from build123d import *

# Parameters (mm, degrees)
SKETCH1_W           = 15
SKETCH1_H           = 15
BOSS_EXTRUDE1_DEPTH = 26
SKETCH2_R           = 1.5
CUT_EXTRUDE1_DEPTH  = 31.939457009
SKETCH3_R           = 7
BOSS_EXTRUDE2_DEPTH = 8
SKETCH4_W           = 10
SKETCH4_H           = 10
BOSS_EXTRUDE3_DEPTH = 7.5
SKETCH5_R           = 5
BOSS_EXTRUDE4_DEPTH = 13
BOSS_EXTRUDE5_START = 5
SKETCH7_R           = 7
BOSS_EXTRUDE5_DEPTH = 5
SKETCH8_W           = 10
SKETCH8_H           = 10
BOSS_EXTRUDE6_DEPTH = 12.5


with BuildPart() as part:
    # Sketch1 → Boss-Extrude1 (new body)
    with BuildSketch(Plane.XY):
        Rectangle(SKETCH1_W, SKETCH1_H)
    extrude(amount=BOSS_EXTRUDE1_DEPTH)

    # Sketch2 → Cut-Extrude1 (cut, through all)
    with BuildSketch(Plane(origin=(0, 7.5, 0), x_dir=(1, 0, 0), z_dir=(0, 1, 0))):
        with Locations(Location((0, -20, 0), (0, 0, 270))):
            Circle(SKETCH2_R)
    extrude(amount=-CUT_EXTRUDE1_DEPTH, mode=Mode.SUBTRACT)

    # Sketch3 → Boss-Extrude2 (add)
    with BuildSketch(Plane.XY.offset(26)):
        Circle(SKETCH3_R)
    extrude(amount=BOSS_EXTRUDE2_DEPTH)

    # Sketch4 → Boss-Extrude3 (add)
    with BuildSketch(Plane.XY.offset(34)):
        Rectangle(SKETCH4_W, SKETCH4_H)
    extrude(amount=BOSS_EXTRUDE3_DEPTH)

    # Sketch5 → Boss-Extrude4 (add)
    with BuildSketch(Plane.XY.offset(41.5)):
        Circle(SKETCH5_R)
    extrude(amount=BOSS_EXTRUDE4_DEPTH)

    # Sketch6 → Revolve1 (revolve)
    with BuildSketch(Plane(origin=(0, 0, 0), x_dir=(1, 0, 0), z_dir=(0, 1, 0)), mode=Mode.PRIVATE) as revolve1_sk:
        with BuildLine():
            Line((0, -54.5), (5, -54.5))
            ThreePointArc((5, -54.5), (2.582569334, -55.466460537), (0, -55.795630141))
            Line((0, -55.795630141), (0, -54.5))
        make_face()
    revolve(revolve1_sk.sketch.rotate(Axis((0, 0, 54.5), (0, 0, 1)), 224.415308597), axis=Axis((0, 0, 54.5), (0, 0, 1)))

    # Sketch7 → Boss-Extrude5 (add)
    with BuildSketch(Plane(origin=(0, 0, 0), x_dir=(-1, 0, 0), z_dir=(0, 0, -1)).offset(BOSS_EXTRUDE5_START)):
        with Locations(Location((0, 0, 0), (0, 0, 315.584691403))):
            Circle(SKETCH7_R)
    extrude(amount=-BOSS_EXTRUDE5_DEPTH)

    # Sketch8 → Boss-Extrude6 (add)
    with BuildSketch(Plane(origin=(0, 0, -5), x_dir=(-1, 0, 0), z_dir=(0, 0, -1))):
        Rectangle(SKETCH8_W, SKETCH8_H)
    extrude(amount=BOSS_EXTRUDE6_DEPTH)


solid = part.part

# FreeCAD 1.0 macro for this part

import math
import FreeCAD as App
import Part
import Sketcher
from FreeCAD import Vector
Q = App.Units.Quantity

doc = App.newDocument("Part")
body = doc.addObject("PartDesign::Body", "Body")

# Sketch on XY plane
sketch1 = body.newObject("Sketcher::SketchObject", "Sketch")
sketch1.AttachmentSupport = (doc.getObject("XY_Plane"), [""])
sketch1.MapMode = "FlatFace"
sketch1.addGeometry([
    Part.LineSegment(Vector(-7.5, 7.5, 0), Vector(-7.5, -7.5, 0)),
    Part.LineSegment(Vector(-7.5, -7.5, 0), Vector(7.5, -7.5, 0)),
    Part.LineSegment(Vector(7.5, -7.5, 0), Vector(7.5, 7.5, 0)),
    Part.LineSegment(Vector(7.5, 7.5, 0), Vector(-7.5, 7.5, 0)),
], False)
sketch1.addConstraint([
    Sketcher.Constraint("Coincident", 0, 2, 1, 1),
    Sketcher.Constraint("Coincident", 1, 2, 2, 1),
    Sketcher.Constraint("Coincident", 2, 2, 3, 1),
    Sketcher.Constraint("Coincident", 3, 2, 0, 1),
    Sketcher.Constraint("Vertical", 0),
    Sketcher.Constraint("Horizontal", 1),
    Sketcher.Constraint("Vertical", 2),
    Sketcher.Constraint("Horizontal", 3),
    Sketcher.Constraint("Symmetric", 0, 2, 2, 2, -1, 1),
    Sketcher.Constraint("Equal", 3, 0),
    Sketcher.Constraint("DistanceX", 1, 1, 1, 2, Q("15 mm")),
])
pad1 = body.newObject("PartDesign::Pad", "Pad")
pad1.Profile = sketch1
pad1.Length = 26

# Sketch on XZ plane
sketch2 = body.newObject("Sketcher::SketchObject", "Sketch001")
sketch2.AttachmentSupport = (doc.getObject("XZ_Plane"), [""])
sketch2.MapMode = "FlatFace"
sketch2.AttachmentOffset = App.Placement(Vector(0, 0, -7.5), App.Rotation())
sketch2.addGeometry(Part.Circle(Vector(0, 20, 0), Vector(0, 0, 1), 1.5), False)
sketch2.addConstraint([
    Sketcher.Constraint("PointOnObject", 0, 3, -2),
    Sketcher.Constraint("Diameter", 0, Q("3 mm")),
    Sketcher.Constraint("DistanceY", -1, 1, 0, 3, Q("20 mm")),
])
pocket1 = body.newObject("PartDesign::Pocket", "Pocket")
pocket1.Profile = sketch2
pocket1.Type = "ThroughAll"
pocket1.Reversed = True

# Sketch on XY plane
sketch3 = body.newObject("Sketcher::SketchObject", "Sketch002")
sketch3.AttachmentSupport = (doc.getObject("XY_Plane"), [""])
sketch3.MapMode = "FlatFace"
sketch3.AttachmentOffset = App.Placement(Vector(0, 0, 26), App.Rotation())
sketch3.addGeometry(Part.Circle(Vector(0, 0, 0), Vector(0, 0, 1), 7), False)
sketch3.addConstraint([
    Sketcher.Constraint("Coincident", 0, 3, -1, 1),
    Sketcher.Constraint("Diameter", 0, Q("14 mm")),
])
pad2 = body.newObject("PartDesign::Pad", "Pad001")
pad2.Profile = sketch3
pad2.Length = 8

# Sketch on XY plane
sketch4 = body.newObject("Sketcher::SketchObject", "Sketch003")
sketch4.AttachmentSupport = (doc.getObject("XY_Plane"), [""])
sketch4.MapMode = "FlatFace"
sketch4.AttachmentOffset = App.Placement(Vector(0, 0, 34), App.Rotation())
sketch4.addGeometry([
    Part.LineSegment(Vector(-5, 5, 0), Vector(-5, -5, 0)),
    Part.LineSegment(Vector(-5, -5, 0), Vector(5, -5, 0)),
    Part.LineSegment(Vector(5, -5, 0), Vector(5, 5, 0)),
    Part.LineSegment(Vector(5, 5, 0), Vector(-5, 5, 0)),
], False)
sketch4.addConstraint([
    Sketcher.Constraint("Coincident", 0, 2, 1, 1),
    Sketcher.Constraint("Coincident", 1, 2, 2, 1),
    Sketcher.Constraint("Coincident", 2, 2, 3, 1),
    Sketcher.Constraint("Coincident", 3, 2, 0, 1),
    Sketcher.Constraint("Vertical", 0),
    Sketcher.Constraint("Horizontal", 1),
    Sketcher.Constraint("Vertical", 2),
    Sketcher.Constraint("Horizontal", 3),
    Sketcher.Constraint("Symmetric", 0, 2, 2, 2, -1, 1),
    Sketcher.Constraint("Equal", 3, 0),
    Sketcher.Constraint("DistanceX", 1, 1, 1, 2, Q("10 mm")),
])
pad3 = body.newObject("PartDesign::Pad", "Pad002")
pad3.Profile = sketch4
pad3.Length = 7.5

# Sketch on XY plane
sketch5 = body.newObject("Sketcher::SketchObject", "Sketch004")
sketch5.AttachmentSupport = (doc.getObject("XY_Plane"), [""])
sketch5.MapMode = "FlatFace"
sketch5.AttachmentOffset = App.Placement(Vector(0, 0, 41.5), App.Rotation())
sketch5.addGeometry(Part.Circle(Vector(0, 0, 0), Vector(0, 0, 1), 5), False)
sketch5.addConstraint([
    Sketcher.Constraint("Coincident", 0, 3, -1, 1),
    Sketcher.Constraint("Diameter", 0, Q("10 mm")),
])
pad4 = body.newObject("PartDesign::Pad", "Pad003")
pad4.Profile = sketch5
pad4.Length = 13

# Sketch on XZ plane
sketch6 = body.newObject("Sketcher::SketchObject", "Sketch005")
sketch6.AttachmentSupport = (doc.getObject("XZ_Plane"), [""])
sketch6.MapMode = "FlatFace"
sketch6.addGeometry([
    Part.LineSegment(Vector(5, 54.5, 0), Vector(0, 54.5, 0)),
    Part.LineSegment(Vector(0, 54.5, 0), Vector(0, 55.79563, 0)),
    Part.ArcOfCircle(Part.Circle(Vector(0, 45.5, 0), Vector(0, 0, 1), 10.29563), math.radians(60.945396), math.radians(90)),
], False)
sketch6.addConstraint([
    Sketcher.Constraint("Coincident", 0, 2, 1, 1),
    Sketcher.Constraint("Coincident", 1, 2, 2, 2),
    Sketcher.Constraint("Coincident", 2, 1, 0, 1),
    Sketcher.Constraint("Horizontal", 0),
    Sketcher.Constraint("Vertical", 1),
    Sketcher.Constraint("PointOnObject", 2, 3, -2),
    Sketcher.Constraint("PointOnObject", 0, 2, -2),
    Sketcher.Constraint("DistanceX", 0, 2, 0, 1, Q("5 mm")),
    Sketcher.Constraint("DistanceY", 2, 3, 0, 2, Q("9 mm")),
    Sketcher.Constraint("DistanceY", -1, 1, 2, 3, Q("45.5 mm")),
])
revolution = body.newObject("PartDesign::Revolution", "Revolution")
revolution.Profile = sketch6
revolution.ReferenceAxis = (sketch6, ["V_Axis"])
revolution.Angle = 360

# Sketch on XY plane
sketch7 = body.newObject("Sketcher::SketchObject", "Sketch006")
sketch7.AttachmentSupport = (doc.getObject("XY_Plane"), [""])
sketch7.MapMode = "FlatFace"
sketch7.AttachmentOffset = App.Placement(Vector(0, 0, -5), App.Rotation())
sketch7.addGeometry(Part.Circle(Vector(0, 0, 0), Vector(0, 0, 1), 7), False)
sketch7.addConstraint([
    Sketcher.Constraint("Coincident", 0, 3, -1, 1),
    Sketcher.Constraint("Diameter", 0, Q("14 mm")),
])
pad5 = body.newObject("PartDesign::Pad", "Pad004")
pad5.Profile = sketch7
pad5.Length = 5

# Sketch on XY plane
sketch8 = body.newObject("Sketcher::SketchObject", "Sketch007")
sketch8.AttachmentSupport = (doc.getObject("XY_Plane"), [""])
sketch8.MapMode = "FlatFace"
sketch8.AttachmentOffset = App.Placement(Vector(0, 0, -5), App.Rotation())
sketch8.addGeometry([
    Part.LineSegment(Vector(5, 5, 0), Vector(5, -5, 0)),
    Part.LineSegment(Vector(5, -5, 0), Vector(-5, -5, 0)),
    Part.LineSegment(Vector(-5, -5, 0), Vector(-5, 5, 0)),
    Part.LineSegment(Vector(-5, 5, 0), Vector(5, 5, 0)),
], False)
sketch8.addConstraint([
    Sketcher.Constraint("Coincident", 0, 2, 1, 1),
    Sketcher.Constraint("Coincident", 1, 2, 2, 1),
    Sketcher.Constraint("Coincident", 2, 2, 3, 1),
    Sketcher.Constraint("Coincident", 3, 2, 0, 1),
    Sketcher.Constraint("Vertical", 0),
    Sketcher.Constraint("Horizontal", 1),
    Sketcher.Constraint("Vertical", 2),
    Sketcher.Constraint("Horizontal", 3),
    Sketcher.Constraint("Symmetric", 0, 2, 2, 2, -1, 1),
    Sketcher.Constraint("Equal", 3, 0),
    Sketcher.Constraint("DistanceX", 1, 2, 1, 1, Q("10 mm")),
])
pad6 = body.newObject("PartDesign::Pad", "Pad005")
pad6.Profile = sketch8
pad6.Length = 12.5
pad6.Reversed = True

doc.recompute()
